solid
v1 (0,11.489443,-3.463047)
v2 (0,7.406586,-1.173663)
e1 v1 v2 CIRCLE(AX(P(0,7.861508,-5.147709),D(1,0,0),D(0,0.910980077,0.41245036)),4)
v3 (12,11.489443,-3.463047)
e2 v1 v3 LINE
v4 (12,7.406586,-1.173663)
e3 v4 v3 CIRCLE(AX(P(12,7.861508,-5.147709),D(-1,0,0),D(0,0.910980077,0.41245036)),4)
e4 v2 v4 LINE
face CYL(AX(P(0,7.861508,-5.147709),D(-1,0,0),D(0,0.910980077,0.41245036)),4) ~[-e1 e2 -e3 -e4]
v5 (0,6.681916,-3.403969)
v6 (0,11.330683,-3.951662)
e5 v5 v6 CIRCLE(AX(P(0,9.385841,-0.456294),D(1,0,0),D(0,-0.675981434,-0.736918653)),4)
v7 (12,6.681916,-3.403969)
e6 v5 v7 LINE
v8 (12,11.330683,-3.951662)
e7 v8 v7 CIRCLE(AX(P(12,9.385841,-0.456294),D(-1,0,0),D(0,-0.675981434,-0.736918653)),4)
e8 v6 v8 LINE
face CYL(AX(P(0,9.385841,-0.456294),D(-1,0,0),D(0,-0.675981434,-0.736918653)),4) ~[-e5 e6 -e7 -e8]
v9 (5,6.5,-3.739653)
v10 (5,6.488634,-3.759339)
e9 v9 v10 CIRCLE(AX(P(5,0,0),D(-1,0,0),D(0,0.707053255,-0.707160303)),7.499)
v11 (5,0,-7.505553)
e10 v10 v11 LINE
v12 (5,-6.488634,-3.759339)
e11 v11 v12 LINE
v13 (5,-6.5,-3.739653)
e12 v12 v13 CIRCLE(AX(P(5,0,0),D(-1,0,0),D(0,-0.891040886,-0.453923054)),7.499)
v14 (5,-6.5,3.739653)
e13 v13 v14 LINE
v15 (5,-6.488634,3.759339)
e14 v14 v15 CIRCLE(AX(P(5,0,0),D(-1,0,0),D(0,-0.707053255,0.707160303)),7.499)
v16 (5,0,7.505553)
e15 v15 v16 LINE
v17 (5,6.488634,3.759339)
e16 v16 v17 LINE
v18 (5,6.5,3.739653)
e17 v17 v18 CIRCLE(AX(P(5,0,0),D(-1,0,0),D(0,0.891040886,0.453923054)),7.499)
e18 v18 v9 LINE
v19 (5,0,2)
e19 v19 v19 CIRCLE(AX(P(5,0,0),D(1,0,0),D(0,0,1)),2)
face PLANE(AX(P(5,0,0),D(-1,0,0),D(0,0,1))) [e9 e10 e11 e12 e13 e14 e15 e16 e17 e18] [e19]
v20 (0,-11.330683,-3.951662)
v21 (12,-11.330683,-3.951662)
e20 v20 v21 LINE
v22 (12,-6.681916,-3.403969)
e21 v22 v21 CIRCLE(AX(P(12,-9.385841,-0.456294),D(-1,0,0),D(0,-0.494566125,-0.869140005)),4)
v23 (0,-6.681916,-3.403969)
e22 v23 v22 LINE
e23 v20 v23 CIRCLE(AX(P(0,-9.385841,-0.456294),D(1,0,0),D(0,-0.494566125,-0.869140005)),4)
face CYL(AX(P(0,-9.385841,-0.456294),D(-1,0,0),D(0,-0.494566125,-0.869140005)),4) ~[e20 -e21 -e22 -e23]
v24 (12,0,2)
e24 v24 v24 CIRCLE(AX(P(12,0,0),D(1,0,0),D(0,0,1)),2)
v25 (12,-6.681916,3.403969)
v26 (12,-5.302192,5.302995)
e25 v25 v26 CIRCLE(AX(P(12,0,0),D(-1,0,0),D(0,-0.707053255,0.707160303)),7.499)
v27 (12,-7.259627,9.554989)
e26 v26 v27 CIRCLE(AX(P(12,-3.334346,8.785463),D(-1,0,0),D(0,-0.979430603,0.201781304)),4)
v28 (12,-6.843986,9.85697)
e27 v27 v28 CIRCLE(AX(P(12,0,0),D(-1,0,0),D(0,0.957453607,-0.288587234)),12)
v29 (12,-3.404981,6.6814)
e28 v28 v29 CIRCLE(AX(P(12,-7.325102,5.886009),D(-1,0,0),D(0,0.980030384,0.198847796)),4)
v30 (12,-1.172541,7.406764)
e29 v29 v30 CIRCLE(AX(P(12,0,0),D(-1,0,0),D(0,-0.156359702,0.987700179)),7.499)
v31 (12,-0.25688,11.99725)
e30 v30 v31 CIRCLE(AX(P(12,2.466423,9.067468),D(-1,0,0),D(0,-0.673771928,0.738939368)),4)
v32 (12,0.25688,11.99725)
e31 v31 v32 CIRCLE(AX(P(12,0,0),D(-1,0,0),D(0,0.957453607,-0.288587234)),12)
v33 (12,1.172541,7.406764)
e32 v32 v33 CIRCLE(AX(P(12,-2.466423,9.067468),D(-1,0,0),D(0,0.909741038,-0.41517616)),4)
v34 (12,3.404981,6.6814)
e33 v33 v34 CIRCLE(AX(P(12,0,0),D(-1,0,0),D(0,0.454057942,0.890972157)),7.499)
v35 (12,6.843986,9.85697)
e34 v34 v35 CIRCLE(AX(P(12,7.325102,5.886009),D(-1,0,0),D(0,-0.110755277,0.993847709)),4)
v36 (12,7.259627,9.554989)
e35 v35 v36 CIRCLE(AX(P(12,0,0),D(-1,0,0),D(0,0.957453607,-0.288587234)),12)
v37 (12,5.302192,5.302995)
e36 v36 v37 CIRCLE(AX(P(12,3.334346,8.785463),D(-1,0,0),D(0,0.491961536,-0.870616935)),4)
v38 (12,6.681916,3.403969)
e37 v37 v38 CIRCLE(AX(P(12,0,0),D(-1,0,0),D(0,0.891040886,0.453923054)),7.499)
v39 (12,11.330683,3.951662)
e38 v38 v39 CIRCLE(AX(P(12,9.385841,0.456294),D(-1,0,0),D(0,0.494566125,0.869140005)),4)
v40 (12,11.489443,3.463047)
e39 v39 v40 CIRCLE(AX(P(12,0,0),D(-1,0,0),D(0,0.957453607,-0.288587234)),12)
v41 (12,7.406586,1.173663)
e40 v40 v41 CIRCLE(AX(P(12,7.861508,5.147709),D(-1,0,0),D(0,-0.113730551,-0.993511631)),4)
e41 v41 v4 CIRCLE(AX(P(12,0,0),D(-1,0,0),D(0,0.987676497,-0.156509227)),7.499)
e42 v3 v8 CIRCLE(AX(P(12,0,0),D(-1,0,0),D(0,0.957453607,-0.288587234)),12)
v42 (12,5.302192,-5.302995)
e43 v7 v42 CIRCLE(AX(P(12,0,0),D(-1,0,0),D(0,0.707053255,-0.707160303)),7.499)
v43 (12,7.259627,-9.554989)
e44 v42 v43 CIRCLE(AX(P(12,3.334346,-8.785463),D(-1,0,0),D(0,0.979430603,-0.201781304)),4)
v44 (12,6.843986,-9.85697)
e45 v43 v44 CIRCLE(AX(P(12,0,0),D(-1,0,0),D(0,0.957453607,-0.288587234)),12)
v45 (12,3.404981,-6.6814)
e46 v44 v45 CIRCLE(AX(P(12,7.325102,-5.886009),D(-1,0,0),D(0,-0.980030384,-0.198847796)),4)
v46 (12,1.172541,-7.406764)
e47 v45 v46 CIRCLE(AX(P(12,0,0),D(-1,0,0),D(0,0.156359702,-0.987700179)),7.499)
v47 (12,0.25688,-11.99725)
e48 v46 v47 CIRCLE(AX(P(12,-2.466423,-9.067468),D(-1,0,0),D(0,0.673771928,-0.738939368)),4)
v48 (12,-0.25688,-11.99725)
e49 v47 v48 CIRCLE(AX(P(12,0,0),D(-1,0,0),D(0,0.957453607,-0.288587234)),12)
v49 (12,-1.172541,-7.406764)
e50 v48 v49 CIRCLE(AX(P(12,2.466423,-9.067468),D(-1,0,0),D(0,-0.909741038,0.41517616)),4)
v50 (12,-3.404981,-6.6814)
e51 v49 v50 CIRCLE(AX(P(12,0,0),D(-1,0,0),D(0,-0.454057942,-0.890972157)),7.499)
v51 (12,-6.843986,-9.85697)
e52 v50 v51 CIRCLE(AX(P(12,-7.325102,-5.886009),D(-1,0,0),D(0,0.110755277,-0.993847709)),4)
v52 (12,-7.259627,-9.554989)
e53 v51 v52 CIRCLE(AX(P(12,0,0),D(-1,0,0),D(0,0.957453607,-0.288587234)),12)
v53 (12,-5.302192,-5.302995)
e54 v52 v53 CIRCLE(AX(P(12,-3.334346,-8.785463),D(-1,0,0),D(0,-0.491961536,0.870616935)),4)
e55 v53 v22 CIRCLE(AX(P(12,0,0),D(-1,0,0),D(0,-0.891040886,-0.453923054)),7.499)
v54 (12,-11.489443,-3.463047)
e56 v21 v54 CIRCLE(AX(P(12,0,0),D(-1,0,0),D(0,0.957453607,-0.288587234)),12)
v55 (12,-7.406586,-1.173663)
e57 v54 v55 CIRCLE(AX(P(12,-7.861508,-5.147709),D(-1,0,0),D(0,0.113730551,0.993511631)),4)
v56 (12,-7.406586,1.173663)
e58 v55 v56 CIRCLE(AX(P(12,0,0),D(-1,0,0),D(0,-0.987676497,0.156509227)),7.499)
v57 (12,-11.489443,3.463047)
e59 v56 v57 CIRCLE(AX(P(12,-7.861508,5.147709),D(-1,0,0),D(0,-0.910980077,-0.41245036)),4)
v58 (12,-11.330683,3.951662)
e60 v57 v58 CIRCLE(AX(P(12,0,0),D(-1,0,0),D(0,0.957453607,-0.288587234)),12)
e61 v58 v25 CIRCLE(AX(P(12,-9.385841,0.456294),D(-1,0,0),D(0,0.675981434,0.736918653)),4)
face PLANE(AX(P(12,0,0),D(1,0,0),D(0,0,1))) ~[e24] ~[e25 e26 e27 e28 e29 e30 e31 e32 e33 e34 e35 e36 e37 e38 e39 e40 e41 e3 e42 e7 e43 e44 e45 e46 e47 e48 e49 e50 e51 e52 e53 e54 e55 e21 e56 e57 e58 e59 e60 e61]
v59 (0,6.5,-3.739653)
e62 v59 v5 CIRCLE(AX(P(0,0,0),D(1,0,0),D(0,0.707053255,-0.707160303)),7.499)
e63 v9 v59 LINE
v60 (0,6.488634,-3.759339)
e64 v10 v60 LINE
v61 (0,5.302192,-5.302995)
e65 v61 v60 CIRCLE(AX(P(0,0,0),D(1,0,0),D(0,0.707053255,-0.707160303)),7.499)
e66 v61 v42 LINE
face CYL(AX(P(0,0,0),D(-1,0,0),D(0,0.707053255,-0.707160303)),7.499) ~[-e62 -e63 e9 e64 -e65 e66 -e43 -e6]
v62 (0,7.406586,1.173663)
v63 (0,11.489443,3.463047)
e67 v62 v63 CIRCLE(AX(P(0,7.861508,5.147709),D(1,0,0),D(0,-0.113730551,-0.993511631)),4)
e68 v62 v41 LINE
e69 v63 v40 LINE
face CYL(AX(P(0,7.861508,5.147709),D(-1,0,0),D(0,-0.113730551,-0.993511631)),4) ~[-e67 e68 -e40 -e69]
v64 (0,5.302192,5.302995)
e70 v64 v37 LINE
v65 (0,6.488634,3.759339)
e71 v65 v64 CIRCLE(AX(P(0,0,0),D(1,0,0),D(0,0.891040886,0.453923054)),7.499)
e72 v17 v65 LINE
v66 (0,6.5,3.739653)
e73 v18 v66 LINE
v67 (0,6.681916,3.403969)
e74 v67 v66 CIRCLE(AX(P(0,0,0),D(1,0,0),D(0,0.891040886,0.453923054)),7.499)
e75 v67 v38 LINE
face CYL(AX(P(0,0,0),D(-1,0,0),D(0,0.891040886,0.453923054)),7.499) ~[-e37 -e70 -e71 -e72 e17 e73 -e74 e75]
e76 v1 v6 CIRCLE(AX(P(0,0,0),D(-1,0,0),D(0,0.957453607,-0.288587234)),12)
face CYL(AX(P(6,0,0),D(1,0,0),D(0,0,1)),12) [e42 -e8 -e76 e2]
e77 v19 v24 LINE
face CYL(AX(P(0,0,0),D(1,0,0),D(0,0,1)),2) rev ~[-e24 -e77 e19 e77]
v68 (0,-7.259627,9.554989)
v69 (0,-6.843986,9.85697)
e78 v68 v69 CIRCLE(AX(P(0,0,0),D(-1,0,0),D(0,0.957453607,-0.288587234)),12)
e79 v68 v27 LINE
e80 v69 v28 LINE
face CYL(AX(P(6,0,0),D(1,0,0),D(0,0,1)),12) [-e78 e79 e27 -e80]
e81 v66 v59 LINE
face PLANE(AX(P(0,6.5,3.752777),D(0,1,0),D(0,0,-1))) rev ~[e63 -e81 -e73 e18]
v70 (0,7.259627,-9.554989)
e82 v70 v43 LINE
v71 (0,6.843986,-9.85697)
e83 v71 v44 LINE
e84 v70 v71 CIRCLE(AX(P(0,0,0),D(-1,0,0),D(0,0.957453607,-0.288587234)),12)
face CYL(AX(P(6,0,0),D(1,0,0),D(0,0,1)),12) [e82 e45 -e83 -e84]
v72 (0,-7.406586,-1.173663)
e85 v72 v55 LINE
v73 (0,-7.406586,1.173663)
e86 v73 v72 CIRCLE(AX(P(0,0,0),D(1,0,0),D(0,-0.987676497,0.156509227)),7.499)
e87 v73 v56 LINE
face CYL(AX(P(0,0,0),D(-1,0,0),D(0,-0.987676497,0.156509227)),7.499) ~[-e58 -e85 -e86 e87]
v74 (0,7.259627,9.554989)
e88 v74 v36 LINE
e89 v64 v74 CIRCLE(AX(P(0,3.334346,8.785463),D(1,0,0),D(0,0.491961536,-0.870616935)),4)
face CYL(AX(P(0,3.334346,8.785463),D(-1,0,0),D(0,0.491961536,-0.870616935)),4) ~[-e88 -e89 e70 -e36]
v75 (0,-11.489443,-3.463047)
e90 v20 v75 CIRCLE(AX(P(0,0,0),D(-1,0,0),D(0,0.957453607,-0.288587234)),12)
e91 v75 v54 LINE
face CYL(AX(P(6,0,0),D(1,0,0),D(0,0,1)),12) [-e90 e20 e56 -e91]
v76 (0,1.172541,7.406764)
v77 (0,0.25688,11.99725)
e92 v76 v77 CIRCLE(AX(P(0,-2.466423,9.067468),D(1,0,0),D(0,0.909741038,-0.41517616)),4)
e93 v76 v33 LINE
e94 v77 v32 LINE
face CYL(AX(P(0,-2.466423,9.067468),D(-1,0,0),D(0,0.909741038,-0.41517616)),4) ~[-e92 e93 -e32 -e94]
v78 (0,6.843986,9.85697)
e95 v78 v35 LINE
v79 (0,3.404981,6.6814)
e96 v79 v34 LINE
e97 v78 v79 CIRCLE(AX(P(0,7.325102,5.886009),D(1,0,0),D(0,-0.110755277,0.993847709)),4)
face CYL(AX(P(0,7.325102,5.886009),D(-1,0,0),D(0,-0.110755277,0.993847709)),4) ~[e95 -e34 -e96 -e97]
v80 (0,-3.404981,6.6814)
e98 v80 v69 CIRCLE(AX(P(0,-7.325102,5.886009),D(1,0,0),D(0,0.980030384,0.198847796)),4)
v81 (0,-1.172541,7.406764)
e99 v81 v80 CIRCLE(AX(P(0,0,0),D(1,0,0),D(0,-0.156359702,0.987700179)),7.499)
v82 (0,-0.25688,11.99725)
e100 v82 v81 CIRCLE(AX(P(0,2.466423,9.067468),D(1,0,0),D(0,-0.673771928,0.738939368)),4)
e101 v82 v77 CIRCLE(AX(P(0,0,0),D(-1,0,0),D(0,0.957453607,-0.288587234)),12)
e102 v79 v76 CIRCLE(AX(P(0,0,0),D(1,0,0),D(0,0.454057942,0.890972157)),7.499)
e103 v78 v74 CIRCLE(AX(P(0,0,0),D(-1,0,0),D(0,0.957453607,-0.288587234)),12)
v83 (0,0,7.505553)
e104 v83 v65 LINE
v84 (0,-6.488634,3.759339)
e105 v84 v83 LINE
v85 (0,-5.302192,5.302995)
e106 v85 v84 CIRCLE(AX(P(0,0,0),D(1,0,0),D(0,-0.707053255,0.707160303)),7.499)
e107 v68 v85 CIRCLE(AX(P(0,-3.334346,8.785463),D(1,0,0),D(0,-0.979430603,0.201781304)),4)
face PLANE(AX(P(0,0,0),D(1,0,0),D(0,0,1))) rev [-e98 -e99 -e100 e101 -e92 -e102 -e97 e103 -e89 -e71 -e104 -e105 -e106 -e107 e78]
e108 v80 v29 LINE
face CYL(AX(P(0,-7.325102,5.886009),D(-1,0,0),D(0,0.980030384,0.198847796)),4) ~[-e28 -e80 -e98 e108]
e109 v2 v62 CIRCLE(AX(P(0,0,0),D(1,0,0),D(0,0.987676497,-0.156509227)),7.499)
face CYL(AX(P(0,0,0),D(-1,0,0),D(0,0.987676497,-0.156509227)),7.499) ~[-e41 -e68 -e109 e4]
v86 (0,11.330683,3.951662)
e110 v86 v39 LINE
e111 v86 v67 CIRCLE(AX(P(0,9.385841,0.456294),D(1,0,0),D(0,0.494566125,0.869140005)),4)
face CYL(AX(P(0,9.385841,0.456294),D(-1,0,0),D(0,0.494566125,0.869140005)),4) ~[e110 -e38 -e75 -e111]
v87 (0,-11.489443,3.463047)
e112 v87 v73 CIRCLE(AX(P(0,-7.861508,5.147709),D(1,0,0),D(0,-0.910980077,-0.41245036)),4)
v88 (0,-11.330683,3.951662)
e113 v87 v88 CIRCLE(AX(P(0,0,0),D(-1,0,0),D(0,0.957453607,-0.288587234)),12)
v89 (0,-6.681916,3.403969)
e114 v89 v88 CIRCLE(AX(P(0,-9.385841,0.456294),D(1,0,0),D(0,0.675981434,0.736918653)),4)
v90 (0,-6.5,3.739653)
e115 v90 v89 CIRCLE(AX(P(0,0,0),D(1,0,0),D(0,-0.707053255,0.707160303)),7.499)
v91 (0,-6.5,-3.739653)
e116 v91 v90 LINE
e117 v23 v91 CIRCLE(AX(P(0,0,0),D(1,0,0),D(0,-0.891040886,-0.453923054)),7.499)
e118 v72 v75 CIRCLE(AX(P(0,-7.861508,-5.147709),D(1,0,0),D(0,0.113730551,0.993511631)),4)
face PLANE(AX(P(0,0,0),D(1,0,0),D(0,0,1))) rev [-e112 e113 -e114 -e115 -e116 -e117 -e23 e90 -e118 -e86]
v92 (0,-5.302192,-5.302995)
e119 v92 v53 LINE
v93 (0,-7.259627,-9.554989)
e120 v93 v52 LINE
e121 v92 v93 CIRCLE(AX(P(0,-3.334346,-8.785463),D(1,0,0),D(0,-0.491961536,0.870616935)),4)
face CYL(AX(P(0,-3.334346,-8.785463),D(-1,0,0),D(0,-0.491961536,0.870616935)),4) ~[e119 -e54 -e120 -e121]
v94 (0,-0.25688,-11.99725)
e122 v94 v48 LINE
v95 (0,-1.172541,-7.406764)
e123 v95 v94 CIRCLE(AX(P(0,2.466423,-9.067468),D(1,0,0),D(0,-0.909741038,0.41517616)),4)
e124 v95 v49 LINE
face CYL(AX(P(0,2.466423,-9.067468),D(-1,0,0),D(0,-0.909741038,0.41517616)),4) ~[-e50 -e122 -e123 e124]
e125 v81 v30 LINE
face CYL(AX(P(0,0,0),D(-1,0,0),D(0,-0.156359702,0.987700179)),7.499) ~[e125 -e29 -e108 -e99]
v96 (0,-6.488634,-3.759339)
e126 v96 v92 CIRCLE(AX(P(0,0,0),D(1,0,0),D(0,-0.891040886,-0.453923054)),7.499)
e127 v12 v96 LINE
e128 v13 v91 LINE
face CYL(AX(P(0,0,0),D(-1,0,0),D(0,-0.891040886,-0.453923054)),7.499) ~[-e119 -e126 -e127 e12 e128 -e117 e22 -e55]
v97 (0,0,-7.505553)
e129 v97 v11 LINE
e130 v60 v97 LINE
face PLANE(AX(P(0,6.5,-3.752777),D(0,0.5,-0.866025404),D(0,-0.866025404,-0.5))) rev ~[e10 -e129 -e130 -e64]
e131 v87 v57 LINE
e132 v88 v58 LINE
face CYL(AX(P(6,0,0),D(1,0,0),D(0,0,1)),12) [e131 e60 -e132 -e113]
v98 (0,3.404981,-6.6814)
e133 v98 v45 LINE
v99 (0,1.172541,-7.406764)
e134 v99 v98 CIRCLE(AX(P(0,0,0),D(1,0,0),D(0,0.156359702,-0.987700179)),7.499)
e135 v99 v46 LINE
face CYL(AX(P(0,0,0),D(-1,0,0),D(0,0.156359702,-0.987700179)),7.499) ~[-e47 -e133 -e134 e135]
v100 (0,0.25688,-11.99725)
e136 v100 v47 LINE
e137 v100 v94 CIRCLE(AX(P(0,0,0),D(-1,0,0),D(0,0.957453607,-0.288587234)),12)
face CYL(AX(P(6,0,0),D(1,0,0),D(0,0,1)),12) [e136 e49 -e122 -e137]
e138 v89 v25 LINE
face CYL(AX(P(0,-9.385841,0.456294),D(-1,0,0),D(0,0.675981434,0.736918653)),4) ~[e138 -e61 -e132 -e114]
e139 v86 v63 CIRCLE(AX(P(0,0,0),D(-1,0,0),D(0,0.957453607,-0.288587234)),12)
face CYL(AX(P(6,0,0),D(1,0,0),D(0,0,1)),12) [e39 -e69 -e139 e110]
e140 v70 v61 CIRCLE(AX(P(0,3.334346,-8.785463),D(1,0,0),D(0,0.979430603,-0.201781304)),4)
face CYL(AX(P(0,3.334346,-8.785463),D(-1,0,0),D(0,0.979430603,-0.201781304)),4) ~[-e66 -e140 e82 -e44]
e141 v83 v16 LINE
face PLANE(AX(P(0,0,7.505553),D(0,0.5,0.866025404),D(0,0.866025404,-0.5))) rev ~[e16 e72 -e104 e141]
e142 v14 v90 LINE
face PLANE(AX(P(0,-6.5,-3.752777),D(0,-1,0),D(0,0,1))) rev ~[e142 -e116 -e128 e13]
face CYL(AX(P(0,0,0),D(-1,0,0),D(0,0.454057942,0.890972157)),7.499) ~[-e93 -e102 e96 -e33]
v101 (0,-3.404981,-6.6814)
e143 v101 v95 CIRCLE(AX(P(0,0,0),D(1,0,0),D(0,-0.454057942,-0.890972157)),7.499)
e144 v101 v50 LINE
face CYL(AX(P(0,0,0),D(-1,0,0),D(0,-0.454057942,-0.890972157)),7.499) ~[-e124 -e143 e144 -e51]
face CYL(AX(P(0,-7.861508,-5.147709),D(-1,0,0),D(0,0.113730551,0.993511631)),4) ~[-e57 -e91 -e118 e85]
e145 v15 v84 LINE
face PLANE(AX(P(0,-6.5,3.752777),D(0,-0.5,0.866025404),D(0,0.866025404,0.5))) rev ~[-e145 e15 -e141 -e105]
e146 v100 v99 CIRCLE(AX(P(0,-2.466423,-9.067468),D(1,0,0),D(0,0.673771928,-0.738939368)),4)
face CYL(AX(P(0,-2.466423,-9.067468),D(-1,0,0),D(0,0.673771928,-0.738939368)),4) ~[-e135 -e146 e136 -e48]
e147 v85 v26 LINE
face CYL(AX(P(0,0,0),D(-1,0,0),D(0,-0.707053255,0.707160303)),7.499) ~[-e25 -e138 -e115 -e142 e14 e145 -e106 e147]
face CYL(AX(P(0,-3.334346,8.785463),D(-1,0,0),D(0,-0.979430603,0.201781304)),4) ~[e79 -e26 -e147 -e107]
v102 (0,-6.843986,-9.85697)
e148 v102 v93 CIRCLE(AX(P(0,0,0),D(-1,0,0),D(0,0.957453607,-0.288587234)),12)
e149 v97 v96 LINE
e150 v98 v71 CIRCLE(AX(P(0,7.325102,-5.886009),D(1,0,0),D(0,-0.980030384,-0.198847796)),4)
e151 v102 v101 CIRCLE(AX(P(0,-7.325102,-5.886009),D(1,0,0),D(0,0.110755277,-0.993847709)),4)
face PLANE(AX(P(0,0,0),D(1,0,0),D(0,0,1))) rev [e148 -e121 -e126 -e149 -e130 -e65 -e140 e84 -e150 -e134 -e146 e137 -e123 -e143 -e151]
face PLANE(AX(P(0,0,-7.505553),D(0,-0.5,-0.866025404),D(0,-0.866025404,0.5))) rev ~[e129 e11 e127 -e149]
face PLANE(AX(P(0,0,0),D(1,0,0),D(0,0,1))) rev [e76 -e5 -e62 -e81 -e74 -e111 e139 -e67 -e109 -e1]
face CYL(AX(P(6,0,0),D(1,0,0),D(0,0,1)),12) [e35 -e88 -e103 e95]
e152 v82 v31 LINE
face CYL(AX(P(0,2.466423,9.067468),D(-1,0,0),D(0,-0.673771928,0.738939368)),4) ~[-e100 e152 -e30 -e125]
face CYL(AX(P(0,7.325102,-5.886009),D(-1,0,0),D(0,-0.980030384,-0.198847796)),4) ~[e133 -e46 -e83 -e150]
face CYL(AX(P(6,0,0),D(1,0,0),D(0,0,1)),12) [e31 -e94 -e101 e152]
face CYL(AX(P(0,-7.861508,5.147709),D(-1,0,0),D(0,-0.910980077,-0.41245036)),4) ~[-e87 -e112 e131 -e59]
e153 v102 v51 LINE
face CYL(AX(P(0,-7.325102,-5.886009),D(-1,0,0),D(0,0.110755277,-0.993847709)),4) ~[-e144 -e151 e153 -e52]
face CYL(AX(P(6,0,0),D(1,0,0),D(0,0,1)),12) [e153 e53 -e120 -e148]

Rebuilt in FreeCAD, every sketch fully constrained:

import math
import FreeCAD as App
import Part
import Sketcher

V = App.Vector
Q = App.Units.Quantity

doc = App.newDocument("Part")
body = doc.addObject("PartDesign::Body", "Body")

# Sketch on XZ plane
sketch1 = body.newObject("Sketcher::SketchObject", "Sketch")
sketch1.AttachmentSupport = (doc.getObject("XZ_Plane"), [""])
sketch1.MapMode = "FlatFace"
sketch1.addGeometry(Part.LineSegment(V(0, -12, 0), V(0, 0, 0)), False)
sketch1.addGeometry(Part.LineSegment(V(0, 0, 0), V(12, 0, 0)), False)
sketch1.addGeometry(Part.LineSegment(V(12, 0, 0), V(12, -12, 0)), False)
sketch1.addGeometry(Part.LineSegment(V(12, -12, 0), V(0, -12, 0)), False)
sketch1.addConstraint(Sketcher.Constraint("Coincident", 0, 2, 1, 1))
sketch1.addConstraint(Sketcher.Constraint("Coincident", 1, 2, 2, 1))
sketch1.addConstraint(Sketcher.Constraint("Coincident", 2, 2, 3, 1))
sketch1.addConstraint(Sketcher.Constraint("Coincident", 3, 2, 0, 1))
sketch1.addConstraint(Sketcher.Constraint("Vertical", 0))
sketch1.addConstraint(Sketcher.Constraint("Horizontal", 1))
sketch1.addConstraint(Sketcher.Constraint("Vertical", 2))
sketch1.addConstraint(Sketcher.Constraint("Horizontal", 3))
sketch1.addConstraint(Sketcher.Constraint("Coincident", 0, 2, -1, 1))
sketch1.addConstraint(Sketcher.Constraint("Equal", 3, 0))
sketch1.addConstraint(Sketcher.Constraint("DistanceX", 1, 1, 1, 2, 12.0))
revolution = body.newObject("PartDesign::Revolution", "Revolution")
revolution.Profile = sketch1
revolution.ReferenceAxis = (sketch1, ["H_Axis"])
revolution.Angle = 360

# Sketch on YZ plane
sketch2 = body.newObject("Sketcher::SketchObject", "Sketch001")
sketch2.AttachmentSupport = (doc.getObject("YZ_Plane"), [""])
sketch2.MapMode = "FlatFace"
sketch2.addGeometry(Part.ArcOfCircle(Part.Circle(V(0, 0, 0), V(0, 0, 1), 7.5), math.radians(-9), math.radians(9)), False)
sketch2.addGeometry(Part.ArcOfCircle(Part.Circle(V(7.9, -5.1, 0), V(0, 0, 1), 4), math.radians(24), math.radians(97)), False)
sketch2.addGeometry(Part.ArcOfCircle(Part.Circle(V(0, 0, 0), V(0, 0, 1), 12), math.radians(-17), math.radians(17)), False)
sketch2.addGeometry(Part.ArcOfCircle(Part.Circle(V(7.9, 5.1, 0), V(0, 0, 1), 4), math.radians(-97), math.radians(-24)), False)
sketch2.addConstraint(Sketcher.Constraint("Coincident", 0, 1, 1, 2))
sketch2.addConstraint(Sketcher.Constraint("Coincident", 1, 1, 2, 1))
sketch2.addConstraint(Sketcher.Constraint("Coincident", 2, 2, 3, 2))
sketch2.addConstraint(Sketcher.Constraint("Coincident", 3, 1, 0, 2))
sketch2.addConstraint(Sketcher.Constraint("Coincident", 0, 3, -1, 1))
sketch2.addConstraint(Sketcher.Constraint("Coincident", 2, 3, -1, 1))
sketch2.addConstraint(Sketcher.Constraint("Equal", 1, 3))
sketch2.addConstraint(Sketcher.Constraint("Symmetric", 1, 3, 3, 3, -1))
sketch2.addConstraint(Sketcher.Constraint("Radius", 1, 4.0))
sketch2.addConstraint(Sketcher.Constraint("Radius", 0, 7.499))
sketch2.addConstraint(Sketcher.Constraint("Radius", 2, 12.0254))
sketch2.addConstraint(Sketcher.Constraint("DistanceY", 1, 3, 1, 1, 1.649801))
sketch2.addConstraint(Sketcher.Constraint("DistanceX", -1, 1, 1, 3, 7.861508))
pocket1 = body.newObject("PartDesign::Pocket", "Pocket")
pocket1.Profile = sketch2
pocket1.Type = "ThroughAll"
pocket1.Reversed = True
doc.recompute()

polarpattern = body.newObject("PartDesign::PolarPattern", "PolarPattern")
polarpattern.Originals = [pocket1]
polarpattern.Axis = (doc.getObject("X_Axis"), [""])
polarpattern.Angle = 360
polarpattern.Occurrences = 10
body.Tip = polarpattern

# Sketch on YZ plane
sketch3 = body.newObject("Sketcher::SketchObject", "Sketch002")
sketch3.AttachmentSupport = (doc.getObject("YZ_Plane"), [""])
sketch3.MapMode = "FlatFace"
sketch3.addGeometry(Part.Circle(V(0, 0, 0), V(0, 0, 1), 2), False)
sketch3.addConstraint(Sketcher.Constraint("Coincident", 0, 3, -1, 1))
sketch3.addConstraint(Sketcher.Constraint("Diameter", 0, 4.0))
pocket2 = body.newObject("PartDesign::Pocket", "Pocket001")
pocket2.Profile = sketch3
pocket2.Length = 100.000102
pocket2.Midplane = True

# Sketch on YZ plane
sketch4 = body.newObject("Sketcher::SketchObject", "Sketch003")
sketch4.AttachmentSupport = (doc.getObject("YZ_Plane"), [""])
sketch4.MapMode = "FlatFace"
sketch4.addGeometry(Part.LineSegment(V(0, 8, 0), V(6, 4, 0)), False)
sketch4.addGeometry(Part.LineSegment(V(6, 4, 0), V(6, -4, 0)), False)
sketch4.addGeometry(Part.LineSegment(V(6, -4, 0), V(0, -8, 0)), False)
sketch4.addGeometry(Part.LineSegment(V(0, -8, 0), V(-6, -4, 0)), False)
sketch4.addGeometry(Part.LineSegment(V(-6, -4, 0), V(-6, 4, 0)), False)
sketch4.addGeometry(Part.LineSegment(V(-6, 4, 0), V(0, 8, 0)), False)
sketch4.addConstraint(Sketcher.Constraint("Coincident", 0, 2, 1, 1))
sketch4.addConstraint(Sketcher.Constraint("Coincident", 1, 2, 2, 1))
sketch4.addConstraint(Sketcher.Constraint("Coincident", 2, 2, 3, 1))
sketch4.addConstraint(Sketcher.Constraint("Coincident", 3, 2, 4, 1))
sketch4.addConstraint(Sketcher.Constraint("Coincident", 4, 2, 5, 1))
sketch4.addConstraint(Sketcher.Constraint("Coincident", 5, 2, 0, 1))
sketch4.addConstraint(Sketcher.Constraint("Vertical", 1))
sketch4.addConstraint(Sketcher.Constraint("Vertical", 4))
sketch4.addConstraint(Sketcher.Constraint("Symmetric", 0, 2, 3, 2, -1, 1))
sketch4.addConstraint(Sketcher.Constraint("Symmetric", 2, 2, 5, 2, -1, 1))
sketch4.addConstraint(Sketcher.Constraint("PointOnObject", 2, 2, -2))
sketch4.addConstraint(Sketcher.Constraint("Parallel", 2, 5))
sketch4.addConstraint(Sketcher.Constraint("Horizontal", 1, 2, 3, 2))
sketch4.addConstraint(Sketcher.Constraint("Angle", 0, Q("-30 deg")))
sketch4.addConstraint(Sketcher.Constraint("DistanceX", 3, 2, 1, 2, 13.0))
sketch4.addConstraint(Sketcher.Constraint("DistanceY", 1, 2, 1, 1, 7.505554))
pocket3 = body.newObject("PartDesign::Pocket", "Pocket002")
pocket3.Profile = sketch4
pocket3.Length = 5
pocket3.Reversed = True

doc.recompute()
